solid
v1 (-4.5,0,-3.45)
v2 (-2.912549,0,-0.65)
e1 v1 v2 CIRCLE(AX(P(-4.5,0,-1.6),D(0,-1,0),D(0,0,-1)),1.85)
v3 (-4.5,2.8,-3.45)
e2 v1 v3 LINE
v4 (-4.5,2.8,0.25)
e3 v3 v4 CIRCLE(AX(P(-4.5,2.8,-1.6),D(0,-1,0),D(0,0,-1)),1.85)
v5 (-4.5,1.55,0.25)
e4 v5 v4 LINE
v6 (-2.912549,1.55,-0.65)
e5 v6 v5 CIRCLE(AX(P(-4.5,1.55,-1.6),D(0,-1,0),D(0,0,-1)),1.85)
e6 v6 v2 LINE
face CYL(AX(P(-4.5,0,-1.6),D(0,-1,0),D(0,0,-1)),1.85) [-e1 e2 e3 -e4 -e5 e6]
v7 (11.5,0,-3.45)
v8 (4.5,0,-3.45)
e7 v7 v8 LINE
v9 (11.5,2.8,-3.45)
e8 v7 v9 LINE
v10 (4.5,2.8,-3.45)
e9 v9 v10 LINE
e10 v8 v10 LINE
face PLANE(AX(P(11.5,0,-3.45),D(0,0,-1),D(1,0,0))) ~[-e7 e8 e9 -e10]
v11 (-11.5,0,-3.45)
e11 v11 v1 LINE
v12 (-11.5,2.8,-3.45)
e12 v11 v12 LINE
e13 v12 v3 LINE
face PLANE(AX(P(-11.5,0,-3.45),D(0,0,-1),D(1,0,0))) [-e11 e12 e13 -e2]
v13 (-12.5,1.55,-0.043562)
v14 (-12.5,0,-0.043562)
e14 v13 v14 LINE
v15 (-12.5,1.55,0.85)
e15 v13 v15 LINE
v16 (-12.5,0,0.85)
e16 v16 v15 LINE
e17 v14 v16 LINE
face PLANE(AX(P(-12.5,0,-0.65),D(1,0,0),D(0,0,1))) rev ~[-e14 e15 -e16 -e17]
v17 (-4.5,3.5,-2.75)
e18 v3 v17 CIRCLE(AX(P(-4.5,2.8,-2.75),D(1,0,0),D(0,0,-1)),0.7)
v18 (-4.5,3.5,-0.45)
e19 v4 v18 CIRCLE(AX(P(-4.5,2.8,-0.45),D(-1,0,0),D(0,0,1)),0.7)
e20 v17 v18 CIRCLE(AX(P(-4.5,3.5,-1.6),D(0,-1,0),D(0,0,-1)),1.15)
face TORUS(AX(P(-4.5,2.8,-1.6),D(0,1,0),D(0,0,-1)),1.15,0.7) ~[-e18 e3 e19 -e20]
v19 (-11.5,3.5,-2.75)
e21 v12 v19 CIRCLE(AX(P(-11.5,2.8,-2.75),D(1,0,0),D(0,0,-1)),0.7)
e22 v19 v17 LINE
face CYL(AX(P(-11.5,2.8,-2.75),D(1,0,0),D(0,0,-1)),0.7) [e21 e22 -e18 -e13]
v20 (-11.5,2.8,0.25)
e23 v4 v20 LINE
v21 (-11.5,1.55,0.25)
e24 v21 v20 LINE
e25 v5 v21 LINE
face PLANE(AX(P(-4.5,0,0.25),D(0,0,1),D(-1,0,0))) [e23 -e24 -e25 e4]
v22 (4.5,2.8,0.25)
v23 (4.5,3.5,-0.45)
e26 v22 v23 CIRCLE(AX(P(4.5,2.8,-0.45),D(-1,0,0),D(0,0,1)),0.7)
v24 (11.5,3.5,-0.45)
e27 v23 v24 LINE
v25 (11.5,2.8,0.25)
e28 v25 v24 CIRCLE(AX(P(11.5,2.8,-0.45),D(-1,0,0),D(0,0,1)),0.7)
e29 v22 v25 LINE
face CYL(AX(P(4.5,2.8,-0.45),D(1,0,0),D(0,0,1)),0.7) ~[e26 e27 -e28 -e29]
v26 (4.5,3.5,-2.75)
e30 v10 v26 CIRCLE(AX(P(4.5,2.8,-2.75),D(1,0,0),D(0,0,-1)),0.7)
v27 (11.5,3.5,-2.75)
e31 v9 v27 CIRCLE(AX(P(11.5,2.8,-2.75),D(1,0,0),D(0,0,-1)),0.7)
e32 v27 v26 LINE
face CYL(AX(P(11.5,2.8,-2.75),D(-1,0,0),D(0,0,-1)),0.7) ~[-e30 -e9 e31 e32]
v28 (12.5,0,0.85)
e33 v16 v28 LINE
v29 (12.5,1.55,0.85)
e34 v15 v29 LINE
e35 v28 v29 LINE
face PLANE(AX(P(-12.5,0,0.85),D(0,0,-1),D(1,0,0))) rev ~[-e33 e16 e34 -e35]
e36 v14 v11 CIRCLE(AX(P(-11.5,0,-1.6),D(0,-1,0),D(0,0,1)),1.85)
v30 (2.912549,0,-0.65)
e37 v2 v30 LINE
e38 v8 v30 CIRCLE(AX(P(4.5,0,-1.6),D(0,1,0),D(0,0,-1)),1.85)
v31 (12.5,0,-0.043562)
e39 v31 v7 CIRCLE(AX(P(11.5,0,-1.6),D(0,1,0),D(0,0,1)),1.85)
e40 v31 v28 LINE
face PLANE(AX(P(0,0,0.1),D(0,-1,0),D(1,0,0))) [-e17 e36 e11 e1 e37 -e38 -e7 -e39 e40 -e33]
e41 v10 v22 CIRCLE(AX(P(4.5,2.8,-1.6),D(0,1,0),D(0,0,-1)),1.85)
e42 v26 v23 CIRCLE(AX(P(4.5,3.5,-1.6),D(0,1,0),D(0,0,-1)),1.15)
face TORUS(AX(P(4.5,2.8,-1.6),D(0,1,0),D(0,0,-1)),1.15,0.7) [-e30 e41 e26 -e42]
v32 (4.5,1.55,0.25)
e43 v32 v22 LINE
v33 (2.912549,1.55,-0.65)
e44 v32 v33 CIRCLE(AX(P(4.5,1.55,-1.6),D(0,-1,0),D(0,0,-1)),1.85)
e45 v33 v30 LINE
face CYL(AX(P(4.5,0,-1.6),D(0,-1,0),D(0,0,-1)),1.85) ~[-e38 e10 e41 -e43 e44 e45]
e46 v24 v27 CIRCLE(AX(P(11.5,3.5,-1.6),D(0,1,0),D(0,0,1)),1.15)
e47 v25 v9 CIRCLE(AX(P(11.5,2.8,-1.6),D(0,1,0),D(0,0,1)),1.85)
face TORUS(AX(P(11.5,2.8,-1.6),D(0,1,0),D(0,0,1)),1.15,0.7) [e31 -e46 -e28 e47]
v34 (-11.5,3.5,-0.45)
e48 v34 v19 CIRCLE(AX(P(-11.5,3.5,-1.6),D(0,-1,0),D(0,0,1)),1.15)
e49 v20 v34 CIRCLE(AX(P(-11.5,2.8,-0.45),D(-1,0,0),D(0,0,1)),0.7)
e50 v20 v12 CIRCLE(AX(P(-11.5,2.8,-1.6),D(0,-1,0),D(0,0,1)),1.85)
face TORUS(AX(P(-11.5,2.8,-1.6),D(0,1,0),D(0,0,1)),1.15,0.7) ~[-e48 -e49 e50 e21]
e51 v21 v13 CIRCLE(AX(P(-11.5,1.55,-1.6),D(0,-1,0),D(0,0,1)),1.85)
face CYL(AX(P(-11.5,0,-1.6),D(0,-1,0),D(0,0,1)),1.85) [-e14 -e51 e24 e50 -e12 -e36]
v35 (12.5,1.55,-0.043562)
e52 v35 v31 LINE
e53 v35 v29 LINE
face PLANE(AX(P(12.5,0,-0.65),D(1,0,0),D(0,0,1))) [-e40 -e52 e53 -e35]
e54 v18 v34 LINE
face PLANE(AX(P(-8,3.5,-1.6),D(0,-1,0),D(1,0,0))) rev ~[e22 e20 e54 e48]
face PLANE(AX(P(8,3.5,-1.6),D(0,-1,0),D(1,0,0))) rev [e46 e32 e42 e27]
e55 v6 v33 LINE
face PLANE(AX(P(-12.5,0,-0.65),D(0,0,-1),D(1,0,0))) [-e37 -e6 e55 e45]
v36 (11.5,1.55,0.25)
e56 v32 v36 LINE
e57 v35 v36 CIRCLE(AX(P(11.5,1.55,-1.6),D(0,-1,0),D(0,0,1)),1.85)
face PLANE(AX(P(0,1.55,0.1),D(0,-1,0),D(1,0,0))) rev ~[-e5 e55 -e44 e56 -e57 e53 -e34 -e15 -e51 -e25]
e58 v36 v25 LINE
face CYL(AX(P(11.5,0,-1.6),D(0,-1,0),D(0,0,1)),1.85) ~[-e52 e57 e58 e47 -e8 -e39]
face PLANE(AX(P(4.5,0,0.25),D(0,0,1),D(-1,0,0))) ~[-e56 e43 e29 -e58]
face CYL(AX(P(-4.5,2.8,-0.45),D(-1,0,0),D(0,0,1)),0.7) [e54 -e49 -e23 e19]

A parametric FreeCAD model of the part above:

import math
import FreeCAD as App
import Part
import Sketcher
from FreeCAD import Vector


def edges_at(feature, points):
    """Names of the edges that pass closest to the given points."""
    edges = feature.Shape.Edges
    near = lambda p: min(range(len(edges)), key=lambda i: edges[i].distToShape(Part.Vertex(*p))[0])
    return sorted({f"Edge{near(p) + 1}" for p in points})


def add_polygon(sketch, points):
    """Adds a closed chain of lines whose ends are joined by coincident constraints."""
    first, n = sketch.GeometryCount, len(points)
    for a, b in zip(points, points[1:] + points[:1]):
        sketch.addGeometry(Part.LineSegment(App.Vector(*a, 0), App.Vector(*b, 0)), False)
    for i in range(n):
        sketch.addConstraint(Sketcher.Constraint("Coincident", first + i, 2, first + (i + 1) % n, 1))

doc = App.newDocument("Part")
body = doc.addObject("PartDesign::Body", "Body")

# Sketch on XZ plane
sketch1 = body.newObject("Sketcher::SketchObject", "Sketch")
sketch1.AttachmentSupport = (doc.getObject("XZ_Plane"), [""])
sketch1.MapMode = "FlatFace"
add_polygon(sketch1, [(-12.5, 0.8), (-12.5, -0.7), (12.5, -0.7), (12.5, 0.8)])  # lines 0-3
sketch1.addConstraint([
    Sketcher.Constraint("Vertical", 0),
    Sketcher.Constraint("Horizontal", 1),
    Sketcher.Constraint("Vertical", 2),
    Sketcher.Constraint("Horizontal", 3),
    Sketcher.Constraint("DistanceX", 1, 1, 1, 2, 25.0),
    Sketcher.Constraint("DistanceY", 0, 2, 0, 1, 1.5),
    Sketcher.Constraint("DistanceX", 0, 2, -1, 1, 12.5),
    Sketcher.Constraint("DistanceY", 0, 2, -1, 1, 0.65),
])
pad1 = body.newObject("PartDesign::Pad", "Pad")
pad1.Profile = sketch1
pad1.Length = 1.55
pad1.Reversed = True

# Sketch on XZ plane
sketch2 = body.newObject("Sketcher::SketchObject", "Sketch001")
sketch2.AttachmentSupport = (doc.getObject("XZ_Plane"), [""])
sketch2.MapMode = "FlatFace"
sketch2.addGeometry([
    Part.ArcOfCircle(Part.Circle(Vector(-11.5, -1.6, 0), Vector(0, 0, 1), 1.9), math.radians(90), math.radians(270)),
    Part.LineSegment(Vector(-11.5, -3.5, 0), Vector(-4.5, -3.5, 0)),
    Part.ArcOfCircle(Part.Circle(Vector(-4.5, -1.6, 0), Vector(0, 0, 1), 1.9), math.radians(-90), math.radians(90)),
    Part.LineSegment(Vector(-4.5, 0.2, 0), Vector(-11.5, 0.2, 0)),
], False)
sketch2.addConstraint([
    Sketcher.Constraint("Tangent", 0, 2, 1, 1),
    Sketcher.Constraint("Tangent", 1, 2, 2, 1),
    Sketcher.Constraint("Tangent", 2, 2, 3, 1),
    Sketcher.Constraint("Tangent", 3, 2, 0, 1),
    Sketcher.Constraint("Horizontal", 1),
    Sketcher.Constraint("Horizontal", 3),
    Sketcher.Constraint("DistanceX", 1, 1, 1, 2, 7.0),
    Sketcher.Constraint("Radius", 0, 1.85),
    Sketcher.Constraint("DistanceX", 0, 3, -1, 1, 11.5),
    Sketcher.Constraint("DistanceY", 0, 3, -1, 1, 1.6),
])
pad2 = body.newObject("PartDesign::Pad", "Pad001")
pad2.Profile = sketch2
pad2.Length = 3.5
pad2.Reversed = True
doc.recompute()

mirrored = body.newObject("PartDesign::Mirrored", "Mirrored")
mirrored.Originals = [pad2]
mirrored.MirrorPlane = (doc.getObject("YZ_Plane"), [""])
body.Tip = mirrored
doc.recompute()

fillet = body.newObject("PartDesign::Fillet", "Fillet")
fillet.Base = (mirrored, edges_at(mirrored, [
    (13.35, 3.5, -1.6),
    (8, 3.5, -3.45),
    (2.65, 3.5, -1.6),
    (8, 3.5, 0.25),
    (-13.35, 3.5, -1.6),
    (-8, 3.5, -3.45),
    (-2.65, 3.5, -1.6),
    (-8, 3.5, 0.25),
]))
fillet.Radius = 0.7

doc.recompute()
